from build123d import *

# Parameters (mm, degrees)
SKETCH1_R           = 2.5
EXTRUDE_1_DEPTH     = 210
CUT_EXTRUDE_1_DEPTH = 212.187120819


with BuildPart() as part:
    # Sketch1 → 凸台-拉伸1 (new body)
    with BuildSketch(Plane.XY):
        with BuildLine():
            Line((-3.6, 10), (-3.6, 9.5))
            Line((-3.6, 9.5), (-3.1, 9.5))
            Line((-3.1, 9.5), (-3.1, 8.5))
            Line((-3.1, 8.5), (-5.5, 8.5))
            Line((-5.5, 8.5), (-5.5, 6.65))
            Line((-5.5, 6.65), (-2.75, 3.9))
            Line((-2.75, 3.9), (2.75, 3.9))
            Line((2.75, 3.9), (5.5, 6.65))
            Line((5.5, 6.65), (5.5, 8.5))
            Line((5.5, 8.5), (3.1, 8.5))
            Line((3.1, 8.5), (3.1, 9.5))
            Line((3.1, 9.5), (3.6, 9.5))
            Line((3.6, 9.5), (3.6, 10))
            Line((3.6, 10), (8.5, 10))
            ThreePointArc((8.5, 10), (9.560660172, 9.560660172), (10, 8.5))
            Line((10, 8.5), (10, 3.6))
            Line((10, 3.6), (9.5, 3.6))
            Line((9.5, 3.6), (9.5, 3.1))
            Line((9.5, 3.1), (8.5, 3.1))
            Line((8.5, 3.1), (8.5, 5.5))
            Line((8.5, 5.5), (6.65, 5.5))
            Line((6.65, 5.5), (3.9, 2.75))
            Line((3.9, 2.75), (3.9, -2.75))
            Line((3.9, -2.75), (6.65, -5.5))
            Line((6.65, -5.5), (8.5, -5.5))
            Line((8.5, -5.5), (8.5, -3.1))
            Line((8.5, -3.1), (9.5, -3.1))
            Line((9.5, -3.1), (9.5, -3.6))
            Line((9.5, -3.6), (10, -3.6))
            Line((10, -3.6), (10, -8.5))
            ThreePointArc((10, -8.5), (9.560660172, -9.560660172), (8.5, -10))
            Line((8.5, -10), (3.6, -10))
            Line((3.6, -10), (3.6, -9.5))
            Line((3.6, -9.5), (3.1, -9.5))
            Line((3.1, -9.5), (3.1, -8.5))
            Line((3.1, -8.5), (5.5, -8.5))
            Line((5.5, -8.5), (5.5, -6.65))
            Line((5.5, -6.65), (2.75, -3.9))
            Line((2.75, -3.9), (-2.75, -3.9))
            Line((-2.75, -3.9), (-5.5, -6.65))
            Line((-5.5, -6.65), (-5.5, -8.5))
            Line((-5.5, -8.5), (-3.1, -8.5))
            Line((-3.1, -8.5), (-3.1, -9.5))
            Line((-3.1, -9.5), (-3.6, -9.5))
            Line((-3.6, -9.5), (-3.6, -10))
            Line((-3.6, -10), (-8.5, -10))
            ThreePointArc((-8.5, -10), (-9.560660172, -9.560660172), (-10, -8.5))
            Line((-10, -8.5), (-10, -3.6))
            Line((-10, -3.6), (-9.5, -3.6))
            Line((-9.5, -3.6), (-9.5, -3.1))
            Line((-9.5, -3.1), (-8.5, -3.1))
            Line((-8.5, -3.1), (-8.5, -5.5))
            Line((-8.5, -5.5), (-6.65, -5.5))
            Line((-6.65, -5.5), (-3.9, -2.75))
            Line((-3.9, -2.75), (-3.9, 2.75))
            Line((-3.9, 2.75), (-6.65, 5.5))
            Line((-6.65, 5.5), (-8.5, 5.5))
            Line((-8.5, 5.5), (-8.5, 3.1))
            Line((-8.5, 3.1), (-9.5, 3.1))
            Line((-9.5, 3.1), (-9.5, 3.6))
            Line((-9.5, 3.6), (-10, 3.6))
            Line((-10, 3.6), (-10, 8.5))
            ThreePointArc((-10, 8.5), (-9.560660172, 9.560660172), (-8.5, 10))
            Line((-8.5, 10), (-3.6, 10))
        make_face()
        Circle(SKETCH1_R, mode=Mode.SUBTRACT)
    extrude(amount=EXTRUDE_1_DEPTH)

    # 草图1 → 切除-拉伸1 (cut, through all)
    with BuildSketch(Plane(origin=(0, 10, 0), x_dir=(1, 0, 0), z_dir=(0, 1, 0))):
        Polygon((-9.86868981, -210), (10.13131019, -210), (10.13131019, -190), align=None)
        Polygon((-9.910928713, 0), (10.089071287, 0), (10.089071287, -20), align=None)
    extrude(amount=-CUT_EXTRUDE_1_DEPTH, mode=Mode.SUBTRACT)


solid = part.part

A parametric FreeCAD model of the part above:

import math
import FreeCAD as App
import Part
import Sketcher

V = App.Vector
Q = App.Units.Quantity


def add_polygon(sketch, points):
    """Adds a closed chain of lines whose ends are joined by coincident constraints."""
    first, n = sketch.GeometryCount, len(points)
    for a, b in zip(points, points[1:] + points[:1]):
        sketch.addGeometry(Part.LineSegment(App.Vector(*a, 0), App.Vector(*b, 0)), False)
    for i in range(n):
        sketch.addConstraint(Sketcher.Constraint("Coincident", first + i, 2, first + (i + 1) % n, 1))

doc = App.newDocument("Part")
body = doc.addObject("PartDesign::Body", "Body")

# Sketch on XY plane
sketch1 = doc.addObject("Sketcher::SketchObject", "Sketch")
body.addObject(sketch1)
sketch1.AttachmentSupport = (doc.XY_Plane, [""])
sketch1.MapMode = "FlatFace"
sketch1.addGeometry([
    Part.LineSegment(V(-3.6, 9.5, 0), V(-3.6, 10, 0)),  # 0
    Part.LineSegment(V(-3.6, 10, 0), V(-8.5, 10, 0)),  # 1
    Part.ArcOfCircle(Part.Circle(V(-8.5, 8.5, 0), V(0, 0, 1), 1.5), math.radians(90), math.radians(180)),  # 2
    Part.LineSegment(V(-10, 8.5, 0), V(-10, 3.6, 0)),  # 3
    Part.LineSegment(V(-10, 3.6, 0), V(-9.5, 3.6, 0)),  # 4
    Part.LineSegment(V(-9.5, 3.6, 0), V(-9.5, 3.1, 0)),  # 5
    Part.LineSegment(V(-9.5, 3.1, 0), V(-8.5, 3.1, 0)),  # 6
    Part.LineSegment(V(-8.5, 3.1, 0), V(-8.5, 5.5, 0)),  # 7
    Part.LineSegment(V(-8.5, 5.5, 0), V(-6.7, 5.5, 0)),  # 8
    Part.LineSegment(V(-6.7, 5.5, 0), V(-3.9, 2.8, 0)),  # 9
    Part.LineSegment(V(-3.9, 2.8, 0), V(-3.9, -2.8, 0)),  # 10
    Part.LineSegment(V(-3.9, -2.8, 0), V(-6.7, -5.5, 0)),  # 11
    Part.LineSegment(V(-6.7, -5.5, 0), V(-8.5, -5.5, 0)),  # 12
    Part.LineSegment(V(-8.5, -5.5, 0), V(-8.5, -3.1, 0)),  # 13
    Part.LineSegment(V(-8.5, -3.1, 0), V(-9.5, -3.1, 0)),  # 14
    Part.LineSegment(V(-9.5, -3.1, 0), V(-9.5, -3.6, 0)),  # 15
    Part.LineSegment(V(-9.5, -3.6, 0), V(-10, -3.6, 0)),  # 16
    Part.LineSegment(V(-10, -3.6, 0), V(-10, -8.5, 0)),  # 17
    Part.ArcOfCircle(Part.Circle(V(-8.5, -8.5, 0), V(0, 0, 1), 1.5), math.radians(180), math.radians(270)),  # 18
    Part.LineSegment(V(-8.5, -10, 0), V(-3.6, -10, 0)),  # 19
    Part.LineSegment(V(-3.6, -10, 0), V(-3.6, -9.5, 0)),  # 20
    Part.LineSegment(V(-3.6, -9.5, 0), V(-3.1, -9.5, 0)),  # 21
    Part.LineSegment(V(-3.1, -9.5, 0), V(-3.1, -8.5, 0)),  # 22
    Part.LineSegment(V(-3.1, -8.5, 0), V(-5.5, -8.5, 0)),  # 23
    Part.LineSegment(V(-5.5, -8.5, 0), V(-5.5, -6.7, 0)),  # 24
    Part.LineSegment(V(-5.5, -6.7, 0), V(-2.8, -3.9, 0)),  # 25
    Part.LineSegment(V(-2.8, -3.9, 0), V(2.8, -3.9, 0)),  # 26
    Part.LineSegment(V(2.8, -3.9, 0), V(5.5, -6.7, 0)),  # 27
    Part.LineSegment(V(5.5, -6.7, 0), V(5.5, -8.5, 0)),  # 28
    Part.LineSegment(V(5.5, -8.5, 0), V(3.1, -8.5, 0)),  # 29
    Part.LineSegment(V(3.1, -8.5, 0), V(3.1, -9.5, 0)),  # 30
    Part.LineSegment(V(3.1, -9.5, 0), V(3.6, -9.5, 0)),  # 31
    Part.LineSegment(V(3.6, -9.5, 0), V(3.6, -10, 0)),  # 32
    Part.LineSegment(V(3.6, -10, 0), V(8.5, -10, 0)),  # 33
    Part.ArcOfCircle(Part.Circle(V(8.5, -8.5, 0), V(0, 0, 1), 1.5), math.radians(-90), math.radians(0)),  # 34
    Part.LineSegment(V(10, -8.5, 0), V(10, -3.6, 0)),  # 35
    Part.LineSegment(V(10, -3.6, 0), V(9.5, -3.6, 0)),  # 36
    Part.LineSegment(V(9.5, -3.6, 0), V(9.5, -3.1, 0)),  # 37
    Part.LineSegment(V(9.5, -3.1, 0), V(8.5, -3.1, 0)),  # 38
    Part.LineSegment(V(8.5, -3.1, 0), V(8.5, -5.5, 0)),  # 39
    Part.LineSegment(V(8.5, -5.5, 0), V(6.7, -5.5, 0)),  # 40
    Part.LineSegment(V(6.7, -5.5, 0), V(3.9, -2.8, 0)),  # 41
    Part.LineSegment(V(3.9, -2.8, 0), V(3.9, 2.8, 0)),  # 42
    Part.LineSegment(V(3.9, 2.8, 0), V(6.7, 5.5, 0)),  # 43
    Part.LineSegment(V(6.7, 5.5, 0), V(8.5, 5.5, 0)),  # 44
    Part.LineSegment(V(8.5, 5.5, 0), V(8.5, 3.1, 0)),  # 45
    Part.LineSegment(V(8.5, 3.1, 0), V(9.5, 3.1, 0)),  # 46
    Part.LineSegment(V(9.5, 3.1, 0), V(9.5, 3.6, 0)),  # 47
    Part.LineSegment(V(9.5, 3.6, 0), V(10, 3.6, 0)),  # 48
    Part.LineSegment(V(10, 3.6, 0), V(10, 8.5, 0)),  # 49
    Part.ArcOfCircle(Part.Circle(V(8.5, 8.5, 0), V(0, 0, 1), 1.5), math.radians(0), math.radians(90)),  # 50
    Part.LineSegment(V(8.5, 10, 0), V(3.6, 10, 0)),  # 51
    Part.LineSegment(V(3.6, 10, 0), V(3.6, 9.5, 0)),  # 52
    Part.LineSegment(V(3.6, 9.5, 0), V(3.1, 9.5, 0)),  # 53
    Part.LineSegment(V(3.1, 9.5, 0), V(3.1, 8.5, 0)),  # 54
    Part.LineSegment(V(3.1, 8.5, 0), V(5.5, 8.5, 0)),  # 55
    Part.LineSegment(V(5.5, 8.5, 0), V(5.5, 6.7, 0)),  # 56
    Part.LineSegment(V(5.5, 6.7, 0), V(2.8, 3.9, 0)),  # 57
    Part.LineSegment(V(2.8, 3.9, 0), V(-2.8, 3.9, 0)),  # 58
    Part.LineSegment(V(-2.8, 3.9, 0), V(-5.5, 6.7, 0)),  # 59
    Part.LineSegment(V(-5.5, 6.7, 0), V(-5.5, 8.5, 0)),  # 60
    Part.LineSegment(V(-5.5, 8.5, 0), V(-3.1, 8.5, 0)),  # 61
    Part.LineSegment(V(-3.1, 8.5, 0), V(-3.1, 9.5, 0)),  # 62
    Part.LineSegment(V(-3.1, 9.5, 0), V(-3.6, 9.5, 0)),  # 63
    Part.Circle(V(0, 0, 0), V(0, 0, 1), 2.5),  # 64
], False)
sketch1.addConstraint([
    Sketcher.Constraint("Coincident", 0, 2, 1, 1),
    Sketcher.Constraint("Tangent", 1, 2, 2, 1),
    Sketcher.Constraint("Tangent", 2, 2, 3, 1),
    Sketcher.Constraint("Coincident", 3, 2, 4, 1),
    Sketcher.Constraint("Coincident", 4, 2, 5, 1),
    Sketcher.Constraint("Coincident", 5, 2, 6, 1),
    Sketcher.Constraint("Coincident", 6, 2, 7, 1),
    Sketcher.Constraint("Coincident", 7, 2, 8, 1),
    Sketcher.Constraint("Coincident", 8, 2, 9, 1),
    Sketcher.Constraint("Coincident", 9, 2, 10, 1),
    Sketcher.Constraint("Coincident", 10, 2, 11, 1),
    Sketcher.Constraint("Coincident", 11, 2, 12, 1),
    Sketcher.Constraint("Coincident", 12, 2, 13, 1),
    Sketcher.Constraint("Coincident", 13, 2, 14, 1),
    Sketcher.Constraint("Coincident", 14, 2, 15, 1),
    Sketcher.Constraint("Coincident", 15, 2, 16, 1),
    Sketcher.Constraint("Coincident", 16, 2, 17, 1),
    Sketcher.Constraint("Tangent", 17, 2, 18, 1),
    Sketcher.Constraint("Tangent", 18, 2, 19, 1),
    Sketcher.Constraint("Coincident", 19, 2, 20, 1),
    Sketcher.Constraint("Coincident", 20, 2, 21, 1),
    Sketcher.Constraint("Coincident", 21, 2, 22, 1),
    Sketcher.Constraint("Coincident", 22, 2, 23, 1),
    Sketcher.Constraint("Coincident", 23, 2, 24, 1),
    Sketcher.Constraint("Coincident", 24, 2, 25, 1),
    Sketcher.Constraint("Coincident", 25, 2, 26, 1),
    Sketcher.Constraint("Coincident", 26, 2, 27, 1),
    Sketcher.Constraint("Coincident", 27, 2, 28, 1),
    Sketcher.Constraint("Coincident", 28, 2, 29, 1),
    Sketcher.Constraint("Coincident", 29, 2, 30, 1),
    Sketcher.Constraint("Coincident", 30, 2, 31, 1),
    Sketcher.Constraint("Coincident", 31, 2, 32, 1),
    Sketcher.Constraint("Coincident", 32, 2, 33, 1),
    Sketcher.Constraint("Tangent", 33, 2, 34, 1),
    Sketcher.Constraint("Tangent", 34, 2, 35, 1),
    Sketcher.Constraint("Coincident", 35, 2, 36, 1),
    Sketcher.Constraint("Coincident", 36, 2, 37, 1),
    Sketcher.Constraint("Coincident", 37, 2, 38, 1),
    Sketcher.Constraint("Coincident", 38, 2, 39, 1),
    Sketcher.Constraint("Coincident", 39, 2, 40, 1),
    Sketcher.Constraint("Coincident", 40, 2, 41, 1),
    Sketcher.Constraint("Coincident", 41, 2, 42, 1),
    Sketcher.Constraint("Coincident", 42, 2, 43, 1),
    Sketcher.Constraint("Coincident", 43, 2, 44, 1),
    Sketcher.Constraint("Coincident", 44, 2, 45, 1),
    Sketcher.Constraint("Coincident", 45, 2, 46, 1),
    Sketcher.Constraint("Coincident", 46, 2, 47, 1),
    Sketcher.Constraint("Coincident", 47, 2, 48, 1),
    Sketcher.Constraint("Coincident", 48, 2, 49, 1),
    Sketcher.Constraint("Tangent", 49, 2, 50, 1),
    Sketcher.Constraint("Tangent", 50, 2, 51, 1),
    Sketcher.Constraint("Coincident", 51, 2, 52, 1),
    Sketcher.Constraint("Coincident", 52, 2, 53, 1),
    Sketcher.Constraint("Coincident", 53, 2, 54, 1),
    Sketcher.Constraint("Coincident", 54, 2, 55, 1),
    Sketcher.Constraint("Coincident", 55, 2, 56, 1),
    Sketcher.Constraint("Coincident", 56, 2, 57, 1),
    Sketcher.Constraint("Coincident", 57, 2, 58, 1),
    Sketcher.Constraint("Coincident", 58, 2, 59, 1),
    Sketcher.Constraint("Coincident", 59, 2, 60, 1),
    Sketcher.Constraint("Coincident", 60, 2, 61, 1),
    Sketcher.Constraint("Coincident", 61, 2, 62, 1),
    Sketcher.Constraint("Coincident", 62, 2, 63, 1),
    Sketcher.Constraint("Coincident", 63, 2, 0, 1),
    Sketcher.Constraint("Vertical", 0),
    Sketcher.Constraint("Horizontal", 1),
    Sketcher.Constraint("Vertical", 3),
    Sketcher.Constraint("Horizontal", 4),
    Sketcher.Constraint("Vertical", 5),
    Sketcher.Constraint("Horizontal", 6),
    Sketcher.Constraint("Vertical", 7),
    Sketcher.Constraint("Horizontal", 8),
    Sketcher.Constraint("Vertical", 10),
    Sketcher.Constraint("Horizontal", 12),
    Sketcher.Constraint("Vertical", 13),
    Sketcher.Constraint("Horizontal", 14),
    Sketcher.Constraint("Vertical", 15),
    Sketcher.Constraint("Horizontal", 16),
    Sketcher.Constraint("Vertical", 17),
    Sketcher.Constraint("Horizontal", 19),
    Sketcher.Constraint("Vertical", 20),
    Sketcher.Constraint("Horizontal", 21),
    Sketcher.Constraint("Vertical", 22),
    Sketcher.Constraint("Horizontal", 23),
    Sketcher.Constraint("Vertical", 24),
    Sketcher.Constraint("Horizontal", 26),
    Sketcher.Constraint("Vertical", 28),
    Sketcher.Constraint("Horizontal", 29),
    Sketcher.Constraint("Vertical", 30),
    Sketcher.Constraint("Horizontal", 31),
    Sketcher.Constraint("Vertical", 32),
    Sketcher.Constraint("Horizontal", 33),
    Sketcher.Constraint("Vertical", 35),
    Sketcher.Constraint("Horizontal", 36),
    Sketcher.Constraint("Vertical", 37),
    Sketcher.Constraint("Horizontal", 38),
    Sketcher.Constraint("Vertical", 39),
    Sketcher.Constraint("Horizontal", 40),
    Sketcher.Constraint("Vertical", 42),
    Sketcher.Constraint("Horizontal", 44),
    Sketcher.Constraint("Vertical", 45),
    Sketcher.Constraint("Horizontal", 46),
    Sketcher.Constraint("Vertical", 47),
    Sketcher.Constraint("Horizontal", 48),
    Sketcher.Constraint("Vertical", 49),
    Sketcher.Constraint("Horizontal", 51),
    Sketcher.Constraint("Vertical", 52),
    Sketcher.Constraint("Horizontal", 53),
    Sketcher.Constraint("Vertical", 54),
    Sketcher.Constraint("Horizontal", 55),
    Sketcher.Constraint("Vertical", 56),
    Sketcher.Constraint("Horizontal", 58),
    Sketcher.Constraint("Vertical", 60),
    Sketcher.Constraint("Horizontal", 61),
    Sketcher.Constraint("Vertical", 62),
    Sketcher.Constraint("Horizontal", 63),
    Sketcher.Constraint("Coincident", 64, 3, -1, 1),
    Sketcher.Constraint("Equal", 2, 18),
    Sketcher.Constraint("Equal", 18, 34),
    Sketcher.Constraint("Equal", 34, 50),
    Sketcher.Constraint("Symmetric", 2, 3, 34, 3, -1, 1),
    Sketcher.Constraint("Symmetric", 18, 3, 50, 3, -1, 1),
    Sketcher.Constraint("Symmetric", 4, 2, 36, 2, -1, 1),
    Sketcher.Constraint("Symmetric", 6, 2, 38, 2, -1, 1),
    Sketcher.Constraint("Symmetric", 8, 2, 40, 2, -1, 1),
    Sketcher.Constraint("Symmetric", 9, 2, 41, 2, -1, 1),
    Sketcher.Constraint("Symmetric", 11, 2, 43, 2, -1, 1),
    Sketcher.Constraint("Symmetric", 13, 2, 45, 2, -1, 1),
    Sketcher.Constraint("Symmetric", 15, 2, 47, 2, -1, 1),
    Sketcher.Constraint("Symmetric", 20, 2, 52, 2, -1, 1),
    Sketcher.Constraint("Symmetric", 22, 2, 54, 2, -1, 1),
    Sketcher.Constraint("Symmetric", 24, 2, 56, 2, -1, 1),
    Sketcher.Constraint("Symmetric", 25, 2, 57, 2, -1, 1),
    Sketcher.Constraint("Symmetric", 27, 2, 59, 2, -1, 1),
    Sketcher.Constraint("Symmetric", 29, 2, 61, 2, -1, 1),
    Sketcher.Constraint("Symmetric", 31, 2, 63, 2, -1, 1),
    Sketcher.Constraint("Symmetric", 18, 3, 34, 3, -2),
    Sketcher.Constraint("Symmetric", 24, 2, 27, 2, -2),
    Sketcher.Constraint("Symmetric", 22, 2, 29, 2, -2),
    Sketcher.Constraint("Symmetric", 20, 2, 31, 2, -2),
    Sketcher.Constraint("Symmetric", 15, 2, 36, 2, -2),
    Sketcher.Constraint("Symmetric", 13, 2, 38, 2, -2),
    Sketcher.Constraint("Symmetric", 11, 2, 40, 2, -2),
    Sketcher.Constraint("Perpendicular", 9, 11),
    Sketcher.Constraint("Parallel", 11, 25),
    Sketcher.Constraint("Perpendicular", 25, 27),
    Sketcher.Constraint("Perpendicular", 41, 43),
    Sketcher.Constraint("Perpendicular", 57, 59),
    Sketcher.Constraint("Horizontal", 17, 2, 22, 2),
    Sketcher.Constraint("Horizontal", 10, 2, 41, 2),
    Sketcher.Constraint("Vertical", 1, 2, 6, 2),
    Sketcher.Constraint("Equal", 16, 21),
    Sketcher.Constraint("Equal", 63, 0),
    Sketcher.Constraint("Equal", 51, 3),
    Sketcher.Constraint("Equal", 0, 5),
    Sketcher.Constraint("Equal", 61, 7),
    Sketcher.Constraint("Equal", 58, 10),
    Sketcher.Constraint("Equal", 44, 24),
    Sketcher.Constraint("Equal", 11, 25),
    Sketcher.Constraint("Diameter", 64, Q("5 mm")),
    Sketcher.Constraint("Radius", 2, Q("1.5 mm")),
    Sketcher.Constraint("DistanceX", 6, 1, 6, 2, Q("1 mm")),
    Sketcher.Constraint("DistanceX", 1, 2, 1, 1, Q("4.9 mm")),
    Sketcher.Constraint("DistanceX", 23, 2, 23, 1, Q("2.4 mm")),
    Sketcher.Constraint("DistanceX", 26, 1, 26, 2, Q("5.5 mm")),
    Sketcher.Constraint("DistanceY", -1, 1, 0, 2, Q("10 mm")),
    Sketcher.Constraint("DistanceX", 8, 1, 8, 2, Q("1.85 mm")),
])
pad1 = doc.addObject("PartDesign::Pad", "Pad")
body.addObject(pad1)
pad1.Profile = sketch1
pad1.Length = 210

# Sketch on XZ plane
sketch2 = doc.addObject("Sketcher::SketchObject", "Sketch001")
body.addObject(sketch2)
sketch2.AttachmentSupport = (doc.XZ_Plane, [""])
sketch2.MapMode = "FlatFace"
sketch2.AttachmentOffset = App.Placement(V(0, 0, -10), App.Rotation())
add_polygon(sketch2, [(-10, 210), (10, 210), (10, 190)])  # lines 0-2
add_polygon(sketch2, [(10, 0), (-10, 0), (10, 20)])  # lines 3-5
sketch2.addConstraint([
    Sketcher.Constraint("Horizontal", 0),
    Sketcher.Constraint("Vertical", 1),
    Sketcher.Constraint("Horizontal", 3),
    Sketcher.Constraint("Vertical", 5),
    Sketcher.Constraint("PointOnObject", 3, 2, -1),
    Sketcher.Constraint("Perpendicular", 2, 4),
    Sketcher.Constraint("Equal", 0, 3),
    Sketcher.Constraint("Equal", 3, 1),
    Sketcher.Constraint("DistanceX", 0, 1, 0, 2, Q("20 mm")),
    Sketcher.Constraint("DistanceY", -1, 1, 0, 2, Q("210 mm")),
    Sketcher.Constraint("DistanceX", -1, 1, 0, 2, Q("10.13131 mm")),
    Sketcher.Constraint("DistanceX", 3, 2, -1, 1, Q("9.910929 mm")),
])
pocket1 = doc.addObject("PartDesign::Pocket", "Pocket")
body.addObject(pocket1)
pocket1.Profile = sketch2
pocket1.Type = "ThroughAll"
pocket1.Reversed = True

doc.recompute()
